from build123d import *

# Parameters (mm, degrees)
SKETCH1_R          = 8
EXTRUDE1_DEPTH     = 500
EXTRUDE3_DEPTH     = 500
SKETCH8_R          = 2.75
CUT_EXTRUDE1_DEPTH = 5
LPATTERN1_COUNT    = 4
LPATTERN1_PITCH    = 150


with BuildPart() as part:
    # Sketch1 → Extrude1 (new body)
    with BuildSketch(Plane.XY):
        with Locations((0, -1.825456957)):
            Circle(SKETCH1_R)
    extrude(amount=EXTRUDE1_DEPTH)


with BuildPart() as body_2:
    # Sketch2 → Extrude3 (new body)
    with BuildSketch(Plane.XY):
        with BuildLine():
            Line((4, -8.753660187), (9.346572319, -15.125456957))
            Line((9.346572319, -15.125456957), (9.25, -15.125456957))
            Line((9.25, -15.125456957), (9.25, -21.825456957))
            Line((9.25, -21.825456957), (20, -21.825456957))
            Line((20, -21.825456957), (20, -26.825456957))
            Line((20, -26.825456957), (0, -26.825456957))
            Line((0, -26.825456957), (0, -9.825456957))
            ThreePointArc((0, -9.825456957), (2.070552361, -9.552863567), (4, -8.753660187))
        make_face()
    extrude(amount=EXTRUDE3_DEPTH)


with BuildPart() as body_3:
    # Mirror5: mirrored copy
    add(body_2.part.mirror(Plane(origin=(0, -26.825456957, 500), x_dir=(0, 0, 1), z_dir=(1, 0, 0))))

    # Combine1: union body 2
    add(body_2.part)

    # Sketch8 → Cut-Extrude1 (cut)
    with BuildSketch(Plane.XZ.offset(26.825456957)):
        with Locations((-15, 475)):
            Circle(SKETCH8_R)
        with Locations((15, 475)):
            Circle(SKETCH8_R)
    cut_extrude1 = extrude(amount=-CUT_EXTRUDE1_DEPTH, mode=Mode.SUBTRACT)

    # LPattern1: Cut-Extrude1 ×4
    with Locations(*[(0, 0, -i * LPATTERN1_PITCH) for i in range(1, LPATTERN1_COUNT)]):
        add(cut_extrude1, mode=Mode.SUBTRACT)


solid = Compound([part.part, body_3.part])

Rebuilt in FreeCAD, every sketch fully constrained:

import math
import FreeCAD as App
import Part
import Sketcher
Q = App.Units.Quantity

doc = App.newDocument("Part")
body = doc.addObject("PartDesign::Body", "Body")

# Sketch on XY plane
sketch1 = body.newObject("Sketcher::SketchObject", "Sketch")
sketch1.AttachmentSupport = (doc.getObject("XY_Plane"), [""])
sketch1.MapMode = "FlatFace"
sketch1.addGeometry(Part.Circle(App.Vector(0, -1.825457, 0), App.Vector(0, 0, 1), 8), False)
sketch1.addConstraint(Sketcher.Constraint("PointOnObject", 0, 3, -2))
sketch1.addConstraint(Sketcher.Constraint("Diameter", 0, 16.0))
sketch1.addConstraint(Sketcher.Constraint("DistanceY", 0, 3, -1, 1, 1.825457))
pad1 = body.newObject("PartDesign::Pad", "Pad")
pad1.Profile = sketch1
pad1.Length = 500
body2 = doc.addObject("PartDesign::Body", "Body001")

# Sketch on XY plane
sketch2 = body2.newObject("Sketcher::SketchObject", "Sketch001")
sketch2.AttachmentSupport = (doc.getObject("XY_Plane001"), [""])
sketch2.MapMode = "FlatFace"
sketch2.addGeometry(Part.LineSegment(App.Vector(9.346572, -15.125457, 0), App.Vector(4, -8.75366, 0)), False)
sketch2.addGeometry(Part.ArcOfCircle(Part.Circle(App.Vector(0, -1.825457, 0), App.Vector(0, 0, 1), 8), math.radians(-90), math.radians(-60)), False)
sketch2.addGeometry(Part.LineSegment(App.Vector(0, -9.825457, 0), App.Vector(0, -26.825457, 0)), False)
sketch2.addGeometry(Part.LineSegment(App.Vector(0, -26.825457, 0), App.Vector(20, -26.825457, 0)), False)
sketch2.addGeometry(Part.LineSegment(App.Vector(20, -26.825457, 0), App.Vector(20, -21.825457, 0)), False)
sketch2.addGeometry(Part.LineSegment(App.Vector(20, -21.825457, 0), App.Vector(9.25, -21.825457, 0)), False)
sketch2.addGeometry(Part.LineSegment(App.Vector(9.25, -21.825457, 0), App.Vector(9.25, -15.125457, 0)), False)
sketch2.addGeometry(Part.LineSegment(App.Vector(9.25, -15.125457, 0), App.Vector(9.346572, -15.125457, 0)), False)
sketch2.addConstraint(Sketcher.Constraint("Coincident", 0, 2, 1, 2))
sketch2.addConstraint(Sketcher.Constraint("Coincident", 1, 1, 2, 1))
sketch2.addConstraint(Sketcher.Constraint("Coincident", 2, 2, 3, 1))
sketch2.addConstraint(Sketcher.Constraint("Coincident", 3, 2, 4, 1))
sketch2.addConstraint(Sketcher.Constraint("Coincident", 4, 2, 5, 1))
sketch2.addConstraint(Sketcher.Constraint("Coincident", 5, 2, 6, 1))
sketch2.addConstraint(Sketcher.Constraint("Coincident", 6, 2, 7, 1))
sketch2.addConstraint(Sketcher.Constraint("Coincident", 7, 2, 0, 1))
sketch2.addConstraint(Sketcher.Constraint("Vertical", 2))
sketch2.addConstraint(Sketcher.Constraint("Horizontal", 3))
sketch2.addConstraint(Sketcher.Constraint("Vertical", 4))
sketch2.addConstraint(Sketcher.Constraint("Horizontal", 5))
sketch2.addConstraint(Sketcher.Constraint("Vertical", 6))
sketch2.addConstraint(Sketcher.Constraint("Horizontal", 7))
sketch2.addConstraint(Sketcher.Constraint("PointOnObject", 1, 3, -2))
sketch2.addConstraint(Sketcher.Constraint("PointOnObject", 1, 1, -2))
sketch2.addConstraint(Sketcher.Constraint("Radius", 1, 8.0))
sketch2.addConstraint(Sketcher.Constraint("DistanceX", 3, 1, 3, 2, 20.0))
sketch2.addConstraint(Sketcher.Constraint("DistanceY", 2, 2, 2, 1, 17.0))
sketch2.addConstraint(Sketcher.Constraint("DistanceY", 4, 1, 4, 2, 5.0))
sketch2.addConstraint(Sketcher.Constraint("Angle", 0, Q("130 deg")))
sketch2.addConstraint(Sketcher.Constraint("DistanceY", 6, 1, 6, 2, 6.7))
sketch2.addConstraint(Sketcher.Constraint("DistanceX", -1, 1, 0, 2, 4.0))
sketch2.addConstraint(Sketcher.Constraint("DistanceX", 5, 2, 5, 1, 10.75))
sketch2.addConstraint(Sketcher.Constraint("DistanceY", 0, 2, -1, 1, 8.75366))
pad2 = body2.newObject("PartDesign::Pad", "Pad001")
pad2.Profile = sketch2
pad2.Length = 500
body3 = doc.addObject("PartDesign::Body", "Body002")
doc.recompute()

mirroring = doc.addObject("Part::Mirroring", "Mirroring")
mirroring.Source = body2
mirroring.Base = App.Vector(0, -26.825457, 500)
mirroring.Normal = App.Vector(1, 0, 0)
body3.BaseFeature = mirroring
doc.recompute()

boolean = body3.newObject("PartDesign::Boolean", "Boolean")
boolean.Type = "Fuse"
boolean.addObjects([body2])

# Sketch on XZ plane
sketch3 = body3.newObject("Sketcher::SketchObject", "Sketch002")
sketch3.AttachmentSupport = (doc.getObject("XZ_Plane002"), [""])
sketch3.MapMode = "FlatFace"
sketch3.AttachmentOffset = App.Placement(App.Vector(0, 0, 26.825457), App.Rotation())
sketch3.addGeometry(Part.Circle(App.Vector(-15, 475, 0), App.Vector(0, 0, 1), 2.75), False)
sketch3.addGeometry(Part.Circle(App.Vector(15, 475, 0), App.Vector(0, 0, 1), 2.75), False)
sketch3.addConstraint(Sketcher.Constraint("Equal", 0, 1))
sketch3.addConstraint(Sketcher.Constraint("Symmetric", 0, 3, 1, 3, -2))
sketch3.addConstraint(Sketcher.Constraint("Diameter", 0, 5.5))
sketch3.addConstraint(Sketcher.Constraint("DistanceX", 0, 3, -1, 1, 15.0))
sketch3.addConstraint(Sketcher.Constraint("DistanceY", -1, 1, 0, 3, 475.0))
pocket1 = body3.newObject("PartDesign::Pocket", "Pocket")
pocket1.Profile = sketch3
pocket1.Length = 5
doc.recompute()

linearpattern = body3.newObject("PartDesign::LinearPattern", "LinearPattern")
linearpattern.Originals = [pocket1]
linearpattern.Direction = (doc.getObject("Z_Axis002"), [""])
linearpattern.Mode = "offset"
linearpattern.Offset = 150
linearpattern.Occurrences = 4
linearpattern.Reversed = True
body3.Tip = linearpattern
mirroring.Visibility = False

doc.recompute()
